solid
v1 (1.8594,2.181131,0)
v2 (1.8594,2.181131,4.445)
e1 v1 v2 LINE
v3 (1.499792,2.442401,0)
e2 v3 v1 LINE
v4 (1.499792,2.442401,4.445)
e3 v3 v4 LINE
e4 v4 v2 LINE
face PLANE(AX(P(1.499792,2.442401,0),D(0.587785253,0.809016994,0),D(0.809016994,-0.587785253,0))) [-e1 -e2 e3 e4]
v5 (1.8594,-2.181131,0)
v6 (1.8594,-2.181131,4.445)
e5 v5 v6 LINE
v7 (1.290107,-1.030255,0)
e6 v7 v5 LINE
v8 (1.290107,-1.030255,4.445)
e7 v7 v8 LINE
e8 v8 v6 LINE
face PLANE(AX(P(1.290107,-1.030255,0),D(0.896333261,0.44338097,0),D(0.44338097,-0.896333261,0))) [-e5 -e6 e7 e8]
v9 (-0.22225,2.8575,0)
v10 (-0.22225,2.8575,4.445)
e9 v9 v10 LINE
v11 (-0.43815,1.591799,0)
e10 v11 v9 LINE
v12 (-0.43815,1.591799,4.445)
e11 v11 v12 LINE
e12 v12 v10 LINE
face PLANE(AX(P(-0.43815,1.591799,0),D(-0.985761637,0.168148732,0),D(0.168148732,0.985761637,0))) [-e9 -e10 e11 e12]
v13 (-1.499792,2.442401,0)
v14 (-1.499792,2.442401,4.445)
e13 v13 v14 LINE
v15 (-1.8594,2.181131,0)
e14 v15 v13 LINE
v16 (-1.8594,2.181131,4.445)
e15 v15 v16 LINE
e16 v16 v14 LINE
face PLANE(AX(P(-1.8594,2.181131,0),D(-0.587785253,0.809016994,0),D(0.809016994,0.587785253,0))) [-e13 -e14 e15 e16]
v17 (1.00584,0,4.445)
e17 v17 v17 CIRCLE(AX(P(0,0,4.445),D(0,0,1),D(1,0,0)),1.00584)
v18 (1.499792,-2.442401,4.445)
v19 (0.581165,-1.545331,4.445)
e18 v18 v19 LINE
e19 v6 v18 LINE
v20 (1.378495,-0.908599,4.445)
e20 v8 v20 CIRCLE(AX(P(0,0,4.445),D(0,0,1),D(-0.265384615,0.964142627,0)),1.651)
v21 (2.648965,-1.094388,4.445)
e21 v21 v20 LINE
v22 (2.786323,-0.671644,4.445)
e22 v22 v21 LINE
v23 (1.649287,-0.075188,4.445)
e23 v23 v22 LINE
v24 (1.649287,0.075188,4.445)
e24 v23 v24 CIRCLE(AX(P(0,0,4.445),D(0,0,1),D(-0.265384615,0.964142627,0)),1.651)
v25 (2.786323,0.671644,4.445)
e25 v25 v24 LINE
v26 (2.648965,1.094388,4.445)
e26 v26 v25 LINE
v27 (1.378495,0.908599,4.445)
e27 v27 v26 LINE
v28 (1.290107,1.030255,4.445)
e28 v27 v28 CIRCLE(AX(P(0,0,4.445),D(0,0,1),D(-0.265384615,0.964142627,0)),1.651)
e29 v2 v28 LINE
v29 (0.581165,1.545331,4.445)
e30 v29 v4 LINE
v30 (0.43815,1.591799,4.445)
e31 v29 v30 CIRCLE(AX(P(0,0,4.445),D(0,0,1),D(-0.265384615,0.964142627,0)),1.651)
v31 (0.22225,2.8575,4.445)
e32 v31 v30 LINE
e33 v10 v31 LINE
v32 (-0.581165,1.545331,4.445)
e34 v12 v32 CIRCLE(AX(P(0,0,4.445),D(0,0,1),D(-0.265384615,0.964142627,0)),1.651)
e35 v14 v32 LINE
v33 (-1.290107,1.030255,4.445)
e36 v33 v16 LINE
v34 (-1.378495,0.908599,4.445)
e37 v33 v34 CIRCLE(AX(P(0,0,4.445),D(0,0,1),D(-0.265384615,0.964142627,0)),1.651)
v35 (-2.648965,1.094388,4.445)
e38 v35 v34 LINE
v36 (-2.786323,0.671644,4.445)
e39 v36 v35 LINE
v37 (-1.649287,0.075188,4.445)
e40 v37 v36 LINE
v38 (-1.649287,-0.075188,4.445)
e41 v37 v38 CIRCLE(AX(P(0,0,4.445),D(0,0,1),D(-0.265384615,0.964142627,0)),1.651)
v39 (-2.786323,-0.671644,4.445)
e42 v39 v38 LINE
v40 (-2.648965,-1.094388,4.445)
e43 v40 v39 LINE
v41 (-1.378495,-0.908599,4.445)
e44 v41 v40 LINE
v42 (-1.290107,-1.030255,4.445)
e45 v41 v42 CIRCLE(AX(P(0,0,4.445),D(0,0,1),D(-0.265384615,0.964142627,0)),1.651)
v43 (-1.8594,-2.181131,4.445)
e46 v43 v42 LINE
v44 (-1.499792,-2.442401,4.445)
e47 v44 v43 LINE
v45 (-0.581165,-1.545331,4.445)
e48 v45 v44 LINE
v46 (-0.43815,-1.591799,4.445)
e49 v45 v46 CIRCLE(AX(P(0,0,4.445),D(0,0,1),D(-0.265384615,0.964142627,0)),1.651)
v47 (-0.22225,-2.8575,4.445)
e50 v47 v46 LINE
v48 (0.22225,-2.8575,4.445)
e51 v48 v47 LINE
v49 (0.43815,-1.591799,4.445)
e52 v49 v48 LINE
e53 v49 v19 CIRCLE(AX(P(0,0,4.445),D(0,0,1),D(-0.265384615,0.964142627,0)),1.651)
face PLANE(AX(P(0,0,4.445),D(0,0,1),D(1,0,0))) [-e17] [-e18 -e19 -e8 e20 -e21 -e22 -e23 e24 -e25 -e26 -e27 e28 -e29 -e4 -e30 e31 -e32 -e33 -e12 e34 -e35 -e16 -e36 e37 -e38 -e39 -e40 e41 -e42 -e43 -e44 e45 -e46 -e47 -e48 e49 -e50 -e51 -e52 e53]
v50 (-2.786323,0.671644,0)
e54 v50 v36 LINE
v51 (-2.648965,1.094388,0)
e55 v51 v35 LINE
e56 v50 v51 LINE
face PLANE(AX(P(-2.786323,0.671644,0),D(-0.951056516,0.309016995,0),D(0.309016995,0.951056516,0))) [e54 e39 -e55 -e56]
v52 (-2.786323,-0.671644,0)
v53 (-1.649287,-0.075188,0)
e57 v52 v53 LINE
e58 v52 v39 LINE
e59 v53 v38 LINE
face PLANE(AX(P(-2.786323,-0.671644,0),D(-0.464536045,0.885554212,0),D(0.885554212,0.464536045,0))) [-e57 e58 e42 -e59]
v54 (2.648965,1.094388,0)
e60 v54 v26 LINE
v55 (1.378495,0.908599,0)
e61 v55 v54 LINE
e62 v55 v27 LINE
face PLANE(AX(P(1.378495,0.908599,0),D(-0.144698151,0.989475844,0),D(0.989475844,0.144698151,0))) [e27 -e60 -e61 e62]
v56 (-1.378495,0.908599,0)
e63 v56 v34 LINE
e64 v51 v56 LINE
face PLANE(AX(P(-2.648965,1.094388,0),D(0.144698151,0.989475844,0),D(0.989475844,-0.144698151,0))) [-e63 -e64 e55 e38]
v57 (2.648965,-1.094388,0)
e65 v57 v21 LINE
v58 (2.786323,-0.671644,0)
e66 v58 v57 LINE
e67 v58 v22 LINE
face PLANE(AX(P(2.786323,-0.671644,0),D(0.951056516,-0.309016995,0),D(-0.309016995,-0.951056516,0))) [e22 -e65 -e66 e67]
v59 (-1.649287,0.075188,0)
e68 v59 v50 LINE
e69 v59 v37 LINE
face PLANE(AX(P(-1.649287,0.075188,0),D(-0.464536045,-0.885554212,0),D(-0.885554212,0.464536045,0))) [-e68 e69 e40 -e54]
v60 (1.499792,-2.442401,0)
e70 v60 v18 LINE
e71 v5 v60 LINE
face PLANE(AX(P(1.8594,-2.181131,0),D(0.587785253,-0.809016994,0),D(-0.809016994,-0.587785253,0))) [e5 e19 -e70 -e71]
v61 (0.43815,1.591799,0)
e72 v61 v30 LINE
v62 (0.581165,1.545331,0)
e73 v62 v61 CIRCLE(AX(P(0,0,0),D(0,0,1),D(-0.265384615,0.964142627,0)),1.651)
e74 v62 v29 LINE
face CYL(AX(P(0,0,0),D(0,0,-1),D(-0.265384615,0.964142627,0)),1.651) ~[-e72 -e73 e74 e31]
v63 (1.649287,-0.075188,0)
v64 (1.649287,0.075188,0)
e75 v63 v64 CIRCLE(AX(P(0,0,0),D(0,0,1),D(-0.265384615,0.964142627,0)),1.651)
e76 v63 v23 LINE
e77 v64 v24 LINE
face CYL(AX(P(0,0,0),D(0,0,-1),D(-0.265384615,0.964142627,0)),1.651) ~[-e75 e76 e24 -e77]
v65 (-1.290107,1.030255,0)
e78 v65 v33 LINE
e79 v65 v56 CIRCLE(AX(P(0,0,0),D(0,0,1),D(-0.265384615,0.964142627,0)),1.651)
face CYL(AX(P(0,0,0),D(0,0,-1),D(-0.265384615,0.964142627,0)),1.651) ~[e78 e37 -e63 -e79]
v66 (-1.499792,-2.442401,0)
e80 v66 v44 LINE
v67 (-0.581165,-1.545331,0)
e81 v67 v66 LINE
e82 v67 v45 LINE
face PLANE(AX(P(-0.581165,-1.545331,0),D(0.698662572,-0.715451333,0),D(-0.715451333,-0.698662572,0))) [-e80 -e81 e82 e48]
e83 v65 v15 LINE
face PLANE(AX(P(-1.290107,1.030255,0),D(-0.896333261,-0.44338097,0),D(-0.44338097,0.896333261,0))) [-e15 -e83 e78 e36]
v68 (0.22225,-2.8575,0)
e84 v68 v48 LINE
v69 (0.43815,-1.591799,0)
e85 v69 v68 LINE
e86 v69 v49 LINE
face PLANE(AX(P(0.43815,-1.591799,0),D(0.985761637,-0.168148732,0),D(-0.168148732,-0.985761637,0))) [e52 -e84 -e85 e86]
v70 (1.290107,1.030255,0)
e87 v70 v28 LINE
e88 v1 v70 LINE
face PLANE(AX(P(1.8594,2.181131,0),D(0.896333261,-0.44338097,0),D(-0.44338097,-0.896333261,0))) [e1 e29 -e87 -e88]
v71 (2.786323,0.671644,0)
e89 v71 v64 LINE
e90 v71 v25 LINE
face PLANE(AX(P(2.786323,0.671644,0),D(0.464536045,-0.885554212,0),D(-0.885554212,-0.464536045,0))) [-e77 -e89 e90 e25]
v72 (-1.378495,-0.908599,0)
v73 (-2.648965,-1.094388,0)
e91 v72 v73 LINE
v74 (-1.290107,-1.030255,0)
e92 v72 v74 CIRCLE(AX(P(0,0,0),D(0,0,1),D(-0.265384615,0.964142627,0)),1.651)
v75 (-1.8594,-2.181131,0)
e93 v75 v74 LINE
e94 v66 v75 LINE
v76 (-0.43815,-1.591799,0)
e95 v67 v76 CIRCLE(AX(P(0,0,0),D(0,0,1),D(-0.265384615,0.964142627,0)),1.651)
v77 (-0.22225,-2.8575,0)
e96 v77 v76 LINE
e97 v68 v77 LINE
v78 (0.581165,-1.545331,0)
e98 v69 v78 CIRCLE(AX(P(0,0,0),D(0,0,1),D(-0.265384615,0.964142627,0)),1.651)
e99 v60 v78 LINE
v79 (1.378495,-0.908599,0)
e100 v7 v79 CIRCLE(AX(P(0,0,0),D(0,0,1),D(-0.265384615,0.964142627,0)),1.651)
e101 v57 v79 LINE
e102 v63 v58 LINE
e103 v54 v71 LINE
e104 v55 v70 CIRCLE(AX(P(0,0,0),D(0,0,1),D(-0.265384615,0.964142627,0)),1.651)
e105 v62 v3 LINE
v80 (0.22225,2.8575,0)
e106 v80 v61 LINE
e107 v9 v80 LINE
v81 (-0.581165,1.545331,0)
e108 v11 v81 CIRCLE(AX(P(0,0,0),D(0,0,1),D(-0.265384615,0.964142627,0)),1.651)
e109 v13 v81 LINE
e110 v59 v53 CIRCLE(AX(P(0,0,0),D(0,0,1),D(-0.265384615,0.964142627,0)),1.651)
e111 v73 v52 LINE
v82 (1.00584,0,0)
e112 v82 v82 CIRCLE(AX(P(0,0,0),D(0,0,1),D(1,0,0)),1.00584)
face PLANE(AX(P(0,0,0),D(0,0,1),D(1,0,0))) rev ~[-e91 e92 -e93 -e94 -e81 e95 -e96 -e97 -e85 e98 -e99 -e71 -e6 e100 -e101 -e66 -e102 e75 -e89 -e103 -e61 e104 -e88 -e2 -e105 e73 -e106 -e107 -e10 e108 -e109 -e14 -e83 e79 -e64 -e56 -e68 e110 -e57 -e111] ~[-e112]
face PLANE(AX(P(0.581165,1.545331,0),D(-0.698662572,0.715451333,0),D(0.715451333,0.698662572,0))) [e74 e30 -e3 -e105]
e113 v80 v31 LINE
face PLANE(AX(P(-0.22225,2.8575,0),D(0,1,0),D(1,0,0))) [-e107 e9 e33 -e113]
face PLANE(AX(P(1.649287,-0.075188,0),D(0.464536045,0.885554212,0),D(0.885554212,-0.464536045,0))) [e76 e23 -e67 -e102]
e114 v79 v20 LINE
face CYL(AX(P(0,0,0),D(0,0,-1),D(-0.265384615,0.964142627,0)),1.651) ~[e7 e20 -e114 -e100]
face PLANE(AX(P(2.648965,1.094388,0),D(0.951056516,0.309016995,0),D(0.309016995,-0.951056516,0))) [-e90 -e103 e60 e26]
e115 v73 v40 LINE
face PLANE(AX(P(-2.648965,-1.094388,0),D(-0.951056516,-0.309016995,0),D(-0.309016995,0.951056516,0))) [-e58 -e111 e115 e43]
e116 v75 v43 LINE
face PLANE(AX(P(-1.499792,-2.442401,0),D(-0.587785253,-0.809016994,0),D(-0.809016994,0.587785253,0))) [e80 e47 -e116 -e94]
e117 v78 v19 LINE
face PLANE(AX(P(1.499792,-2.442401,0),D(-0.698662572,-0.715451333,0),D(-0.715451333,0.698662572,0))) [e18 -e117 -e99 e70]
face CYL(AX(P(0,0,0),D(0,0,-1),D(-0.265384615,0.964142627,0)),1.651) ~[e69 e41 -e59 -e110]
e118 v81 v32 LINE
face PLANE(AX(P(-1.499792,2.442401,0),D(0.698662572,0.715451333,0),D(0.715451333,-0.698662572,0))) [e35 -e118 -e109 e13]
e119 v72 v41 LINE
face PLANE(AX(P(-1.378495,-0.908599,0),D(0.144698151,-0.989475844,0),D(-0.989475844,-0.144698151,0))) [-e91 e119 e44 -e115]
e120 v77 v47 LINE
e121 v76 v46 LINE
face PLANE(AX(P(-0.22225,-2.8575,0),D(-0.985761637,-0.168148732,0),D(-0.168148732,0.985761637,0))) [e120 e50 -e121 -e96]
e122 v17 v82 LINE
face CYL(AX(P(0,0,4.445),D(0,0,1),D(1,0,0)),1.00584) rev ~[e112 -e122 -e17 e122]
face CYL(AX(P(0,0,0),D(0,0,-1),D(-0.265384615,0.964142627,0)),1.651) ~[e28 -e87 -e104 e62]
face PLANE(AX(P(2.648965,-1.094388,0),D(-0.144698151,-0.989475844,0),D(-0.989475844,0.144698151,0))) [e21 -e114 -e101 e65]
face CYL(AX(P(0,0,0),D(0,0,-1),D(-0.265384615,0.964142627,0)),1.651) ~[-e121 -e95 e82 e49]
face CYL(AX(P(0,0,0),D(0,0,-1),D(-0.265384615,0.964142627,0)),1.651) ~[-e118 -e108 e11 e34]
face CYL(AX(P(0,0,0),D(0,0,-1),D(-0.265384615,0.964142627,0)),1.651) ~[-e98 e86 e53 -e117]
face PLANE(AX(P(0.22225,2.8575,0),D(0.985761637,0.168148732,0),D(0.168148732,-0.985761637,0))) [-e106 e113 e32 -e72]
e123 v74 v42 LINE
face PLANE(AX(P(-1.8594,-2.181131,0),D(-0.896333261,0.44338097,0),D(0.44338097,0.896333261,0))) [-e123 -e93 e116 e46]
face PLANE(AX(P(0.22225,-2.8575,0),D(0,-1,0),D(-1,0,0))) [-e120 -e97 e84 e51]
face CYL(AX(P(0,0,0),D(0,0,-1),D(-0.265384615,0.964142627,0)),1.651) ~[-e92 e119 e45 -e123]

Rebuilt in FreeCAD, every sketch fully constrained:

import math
import FreeCAD as App
import Part
import Sketcher

V = App.Vector
Q = App.Units.Quantity

doc = App.newDocument("Part")
body = doc.addObject("PartDesign::Body", "Body")

# Sketch on XY plane
sketch1 = doc.addObject("Sketcher::SketchObject", "Sketch")
body.addObject(sketch1)
sketch1.AttachmentSupport = (doc.XY_Plane, [""])
sketch1.MapMode = "FlatFace"
sketch1.addGeometry([
    Part.LineSegment(V(-0.22, 2.86, 0), V(-0.44, 1.59, 0)),  # 0
    Part.ArcOfCircle(Part.Circle(V(0, 0, 0), V(0, 0, 1), 1.65), math.radians(105.39), math.radians(110.61)),  # 1
    Part.LineSegment(V(-0.58, 1.55, 0), V(-1.5, 2.44, 0)),  # 2
    Part.LineSegment(V(-1.5, 2.44, 0), V(-1.86, 2.18, 0)),  # 3
    Part.LineSegment(V(-1.86, 2.18, 0), V(-1.29, 1.03, 0)),  # 4
    Part.ArcOfCircle(Part.Circle(V(0, 0, 0), V(0, 0, 1), 1.65), math.radians(141.39), math.radians(146.61)),  # 5
    Part.LineSegment(V(-1.38, 0.91, 0), V(-2.65, 1.09, 0)),  # 6
    Part.LineSegment(V(-2.65, 1.09, 0), V(-2.79, 0.67, 0)),  # 7
    Part.LineSegment(V(-2.79, 0.67, 0), V(-1.65, 0.08, 0)),  # 8
    Part.ArcOfCircle(Part.Circle(V(0, 0, 0), V(0, 0, 1), 1.65), math.radians(177.39), math.radians(182.61)),  # 9
    Part.LineSegment(V(-1.65, -0.08, 0), V(-2.79, -0.67, 0)),  # 10
    Part.LineSegment(V(-2.79, -0.67, 0), V(-2.65, -1.09, 0)),  # 11
    Part.LineSegment(V(-2.65, -1.09, 0), V(-1.38, -0.91, 0)),  # 12
    Part.ArcOfCircle(Part.Circle(V(0, 0, 0), V(0, 0, 1), 1.65), math.radians(-146.61), math.radians(-141.39)),  # 13
    Part.LineSegment(V(-1.29, -1.03, 0), V(-1.86, -2.18, 0)),  # 14
    Part.LineSegment(V(-1.86, -2.18, 0), V(-1.5, -2.44, 0)),  # 15
    Part.LineSegment(V(-1.5, -2.44, 0), V(-0.58, -1.55, 0)),  # 16
    Part.ArcOfCircle(Part.Circle(V(0, 0, 0), V(0, 0, 1), 1.65), math.radians(-110.61), math.radians(-105.39)),  # 17
    Part.LineSegment(V(-0.44, -1.59, 0), V(-0.22, -2.86, 0)),  # 18
    Part.LineSegment(V(-0.22, -2.86, 0), V(0.22, -2.86, 0)),  # 19
    Part.LineSegment(V(0.22, -2.86, 0), V(0.44, -1.59, 0)),  # 20
    Part.ArcOfCircle(Part.Circle(V(0, 0, 0), V(0, 0, 1), 1.65), math.radians(-74.61), math.radians(-69.39)),  # 21
    Part.LineSegment(V(0.58, -1.55, 0), V(1.5, -2.44, 0)),  # 22
    Part.LineSegment(V(1.5, -2.44, 0), V(1.86, -2.18, 0)),  # 23
    Part.LineSegment(V(1.86, -2.18, 0), V(1.29, -1.03, 0)),  # 24
    Part.ArcOfCircle(Part.Circle(V(0, 0, 0), V(0, 0, 1), 1.65), math.radians(-38.61), math.radians(-33.39)),  # 25
    Part.LineSegment(V(1.38, -0.91, 0), V(2.65, -1.09, 0)),  # 26
    Part.LineSegment(V(2.65, -1.09, 0), V(2.79, -0.67, 0)),  # 27
    Part.LineSegment(V(2.79, -0.67, 0), V(1.65, -0.08, 0)),  # 28
    Part.ArcOfCircle(Part.Circle(V(0, 0, 0), V(0, 0, 1), 1.65), math.radians(-2.61), math.radians(2.61)),  # 29
    Part.LineSegment(V(1.65, 0.08, 0), V(2.79, 0.67, 0)),  # 30
    Part.LineSegment(V(2.79, 0.67, 0), V(2.65, 1.09, 0)),  # 31
    Part.LineSegment(V(2.65, 1.09, 0), V(1.38, 0.91, 0)),  # 32
    Part.ArcOfCircle(Part.Circle(V(0, 0, 0), V(0, 0, 1), 1.65), math.radians(33.39), math.radians(38.61)),  # 33
    Part.LineSegment(V(1.29, 1.03, 0), V(1.86, 2.18, 0)),  # 34
    Part.LineSegment(V(1.86, 2.18, 0), V(1.5, 2.44, 0)),  # 35
    Part.LineSegment(V(1.5, 2.44, 0), V(0.58, 1.55, 0)),  # 36
    Part.ArcOfCircle(Part.Circle(V(0, 0, 0), V(0, 0, 1), 1.65), math.radians(69.39), math.radians(74.61)),  # 37
    Part.LineSegment(V(0.44, 1.59, 0), V(0.22, 2.86, 0)),  # 38
    Part.LineSegment(V(0.22, 2.86, 0), V(-0.22, 2.86, 0)),  # 39
], False)
sketch1.addConstraint([
    Sketcher.Constraint("Coincident", 0, 2, 1, 1),
    Sketcher.Constraint("Coincident", 1, 2, 2, 1),
    Sketcher.Constraint("Coincident", 2, 2, 3, 1),
    Sketcher.Constraint("Coincident", 3, 2, 4, 1),
    Sketcher.Constraint("Coincident", 4, 2, 5, 1),
    Sketcher.Constraint("Coincident", 5, 2, 6, 1),
    Sketcher.Constraint("Coincident", 6, 2, 7, 1),
    Sketcher.Constraint("Coincident", 7, 2, 8, 1),
    Sketcher.Constraint("Coincident", 8, 2, 9, 1),
    Sketcher.Constraint("Coincident", 9, 2, 10, 1),
    Sketcher.Constraint("Coincident", 10, 2, 11, 1),
    Sketcher.Constraint("Coincident", 11, 2, 12, 1),
    Sketcher.Constraint("Coincident", 12, 2, 13, 1),
    Sketcher.Constraint("Coincident", 13, 2, 14, 1),
    Sketcher.Constraint("Coincident", 14, 2, 15, 1),
    Sketcher.Constraint("Coincident", 15, 2, 16, 1),
    Sketcher.Constraint("Coincident", 16, 2, 17, 1),
    Sketcher.Constraint("Coincident", 17, 2, 18, 1),
    Sketcher.Constraint("Coincident", 18, 2, 19, 1),
    Sketcher.Constraint("Coincident", 19, 2, 20, 1),
    Sketcher.Constraint("Coincident", 20, 2, 21, 1),
    Sketcher.Constraint("Coincident", 21, 2, 22, 1),
    Sketcher.Constraint("Coincident", 22, 2, 23, 1),
    Sketcher.Constraint("Coincident", 23, 2, 24, 1),
    Sketcher.Constraint("Coincident", 24, 2, 25, 1),
    Sketcher.Constraint("Coincident", 25, 2, 26, 1),
    Sketcher.Constraint("Coincident", 26, 2, 27, 1),
    Sketcher.Constraint("Coincident", 27, 2, 28, 1),
    Sketcher.Constraint("Coincident", 28, 2, 29, 1),
    Sketcher.Constraint("Coincident", 29, 2, 30, 1),
    Sketcher.Constraint("Coincident", 30, 2, 31, 1),
    Sketcher.Constraint("Coincident", 31, 2, 32, 1),
    Sketcher.Constraint("Coincident", 32, 2, 33, 1),
    Sketcher.Constraint("Coincident", 33, 2, 34, 1),
    Sketcher.Constraint("Coincident", 34, 2, 35, 1),
    Sketcher.Constraint("Coincident", 35, 2, 36, 1),
    Sketcher.Constraint("Coincident", 36, 2, 37, 1),
    Sketcher.Constraint("Coincident", 37, 2, 38, 1),
    Sketcher.Constraint("Coincident", 38, 2, 39, 1),
    Sketcher.Constraint("Coincident", 39, 2, 0, 1),
    Sketcher.Constraint("Horizontal", 19),
    Sketcher.Constraint("Horizontal", 39),
    Sketcher.Constraint("Coincident", 1, 3, -1, 1),
    Sketcher.Constraint("Coincident", 5, 3, -1, 1),
    Sketcher.Constraint("Coincident", 9, 3, -1, 1),
    Sketcher.Constraint("Coincident", 13, 3, -1, 1),
    Sketcher.Constraint("Coincident", 17, 3, -1, 1),
    Sketcher.Constraint("Coincident", 21, 3, -1, 1),
    Sketcher.Constraint("Coincident", 25, 3, -1, 1),
    Sketcher.Constraint("Coincident", 29, 3, -1, 1),
    Sketcher.Constraint("Coincident", 33, 3, -1, 1),
    Sketcher.Constraint("Coincident", 37, 3, -1, 1),
    Sketcher.Constraint("Equal", 1, 5),
    Sketcher.Constraint("Equal", 5, 9),
    Sketcher.Constraint("Equal", 9, 13),
    Sketcher.Constraint("Equal", 13, 17),
    Sketcher.Constraint("Equal", 17, 21),
    Sketcher.Constraint("Equal", 21, 25),
    Sketcher.Constraint("Equal", 25, 29),
    Sketcher.Constraint("Equal", 29, 33),
    Sketcher.Constraint("Equal", 33, 37),
    Sketcher.Constraint("Symmetric", 2, 2, 22, 2, -1, 1),
    Sketcher.Constraint("Symmetric", 3, 2, 23, 2, -1, 1),
    Sketcher.Constraint("Symmetric", 6, 2, 26, 2, -1, 1),
    Sketcher.Constraint("Symmetric", 7, 2, 27, 2, -1, 1),
    Sketcher.Constraint("Symmetric", 10, 2, 30, 2, -1, 1),
    Sketcher.Constraint("Symmetric", 11, 2, 31, 2, -1, 1),
    Sketcher.Constraint("Symmetric", 14, 2, 34, 2, -1, 1),
    Sketcher.Constraint("Symmetric", 15, 2, 35, 2, -1, 1),
    Sketcher.Constraint("Symmetric", 18, 2, 38, 2, -1, 1),
    Sketcher.Constraint("Symmetric", 15, 2, 22, 2, -2),
    Sketcher.Constraint("Symmetric", 14, 2, 23, 2, -2),
    Sketcher.Constraint("Symmetric", 11, 2, 26, 2, -2),
    Sketcher.Constraint("Symmetric", 10, 2, 27, 2, -2),
    Sketcher.Constraint("Parallel", 0, 20),
    Sketcher.Constraint("Parallel", 2, 22),
    Sketcher.Constraint("Parallel", 4, 24),
    Sketcher.Constraint("Parallel", 6, 26),
    Sketcher.Constraint("Parallel", 8, 28),
    Sketcher.Constraint("Parallel", 10, 30),
    Sketcher.Constraint("Parallel", 12, 32),
    Sketcher.Constraint("Parallel", 14, 34),
    Sketcher.Constraint("Parallel", 16, 36),
    Sketcher.Constraint("Parallel", 18, 38),
    Sketcher.Constraint("Horizontal", 17, 2, 20, 2),
    Sketcher.Constraint("Horizontal", 16, 2, 21, 2),
    Sketcher.Constraint("Horizontal", 13, 2, 24, 2),
    Sketcher.Constraint("Horizontal", 12, 2, 25, 2),
    Sketcher.Constraint("Horizontal", 9, 2, 28, 2),
    Sketcher.Constraint("Horizontal", 0, 2, 37, 2),
    Sketcher.Constraint("Vertical", 19, 2, 38, 2),
    Sketcher.Constraint("Equal", 0, 2),
    Sketcher.Constraint("Equal", 2, 4),
    Sketcher.Constraint("Equal", 4, 6),
    Sketcher.Constraint("Equal", 3, 7),
    Sketcher.Constraint("Equal", 6, 8),
    Sketcher.Constraint("Angle", 3, Q("-144 deg")),
    Sketcher.Constraint("Angle", 7, Q("-108 deg")),
    Sketcher.Constraint("Radius", 1, Q("0.065 in")),
    Sketcher.Constraint("DistanceX", 19, 1, 19, 2, Q("0.0175 in")),
    Sketcher.Constraint("DistanceX", 17, 2, 19, 2, Q("0.026 in")),
    Sketcher.Constraint("Distance", 3, Q("0.0175 in")),
    Sketcher.Constraint("DistanceY", 18, 2, -1, 1, Q("0.1125 in")),
    Sketcher.Constraint("DistanceY", -1, 1, 2, 2, 2.442401),
    Sketcher.Constraint("DistanceX", 3, 2, -1, 1, 1.8594),
    Sketcher.Constraint("DistanceY", -1, 1, 5, 2, 0.908599),
    Sketcher.Constraint("DistanceX", 6, 2, 1, 2, 2.0678),
])
pad1 = doc.addObject("PartDesign::Pad", "Pad")
body.addObject(pad1)
pad1.Profile = sketch1
pad1.Length = Q("0.175 in")

# Sketch on XY plane
sketch2 = doc.addObject("Sketcher::SketchObject", "Sketch001")
body.addObject(sketch2)
sketch2.AttachmentSupport = (doc.XY_Plane, [""])
sketch2.MapMode = "FlatFace"
sketch2.AttachmentOffset = App.Placement(V(0, 0, 0.175 * 25.4), App.Rotation())
sketch2.addGeometry(Part.Circle(V(0, 0, 0), V(0, 0, 1), 1), False)
sketch2.addConstraint([
    Sketcher.Constraint("Coincident", 0, 3, -1, 1),
    Sketcher.Constraint("Diameter", 0, Q("0.0792 in")),
])
pocket1 = doc.addObject("PartDesign::Pocket", "Pocket")
body.addObject(pocket1)
pocket1.Profile = sketch2
pocket1.Type = "ThroughAll"

doc.recompute()
